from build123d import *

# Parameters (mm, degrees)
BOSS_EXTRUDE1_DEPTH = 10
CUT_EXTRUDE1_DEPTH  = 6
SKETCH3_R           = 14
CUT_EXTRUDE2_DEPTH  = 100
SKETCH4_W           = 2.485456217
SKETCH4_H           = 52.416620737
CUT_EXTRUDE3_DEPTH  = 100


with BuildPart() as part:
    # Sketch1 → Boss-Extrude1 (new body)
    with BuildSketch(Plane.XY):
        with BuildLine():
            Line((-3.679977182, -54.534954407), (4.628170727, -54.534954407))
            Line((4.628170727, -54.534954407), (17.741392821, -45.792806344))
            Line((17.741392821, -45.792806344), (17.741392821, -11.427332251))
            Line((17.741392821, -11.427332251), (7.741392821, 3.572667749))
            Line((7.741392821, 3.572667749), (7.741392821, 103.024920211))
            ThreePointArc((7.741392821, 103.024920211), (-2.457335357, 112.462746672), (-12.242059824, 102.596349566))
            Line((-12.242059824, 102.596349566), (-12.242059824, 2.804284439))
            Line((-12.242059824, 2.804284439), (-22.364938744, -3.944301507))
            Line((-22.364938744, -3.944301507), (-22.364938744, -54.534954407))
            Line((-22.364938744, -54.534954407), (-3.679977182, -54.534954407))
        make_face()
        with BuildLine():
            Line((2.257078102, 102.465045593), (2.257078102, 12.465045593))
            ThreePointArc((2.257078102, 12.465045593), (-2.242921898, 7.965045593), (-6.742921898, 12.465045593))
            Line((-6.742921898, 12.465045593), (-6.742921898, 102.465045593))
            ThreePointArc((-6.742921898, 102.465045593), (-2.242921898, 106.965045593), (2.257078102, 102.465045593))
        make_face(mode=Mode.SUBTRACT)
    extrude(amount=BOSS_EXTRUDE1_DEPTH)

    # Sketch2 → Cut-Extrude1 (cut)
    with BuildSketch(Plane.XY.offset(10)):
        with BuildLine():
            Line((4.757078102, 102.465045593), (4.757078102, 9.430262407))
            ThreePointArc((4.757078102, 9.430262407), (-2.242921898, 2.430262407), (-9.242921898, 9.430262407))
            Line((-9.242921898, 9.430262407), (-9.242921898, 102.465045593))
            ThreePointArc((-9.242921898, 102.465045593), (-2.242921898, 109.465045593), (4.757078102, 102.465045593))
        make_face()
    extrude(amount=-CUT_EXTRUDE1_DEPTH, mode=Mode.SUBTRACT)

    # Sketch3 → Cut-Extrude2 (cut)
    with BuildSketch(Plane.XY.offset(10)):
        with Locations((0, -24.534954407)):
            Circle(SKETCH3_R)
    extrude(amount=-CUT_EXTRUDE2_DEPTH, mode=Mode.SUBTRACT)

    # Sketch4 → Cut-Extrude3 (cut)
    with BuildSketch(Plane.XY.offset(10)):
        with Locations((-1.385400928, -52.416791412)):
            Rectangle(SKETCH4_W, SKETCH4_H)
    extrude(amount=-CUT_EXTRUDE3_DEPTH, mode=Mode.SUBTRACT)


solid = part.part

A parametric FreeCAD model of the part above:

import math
import FreeCAD as App
import Part
import Sketcher
from FreeCAD import Vector

doc = App.newDocument("Part")
body = doc.addObject("PartDesign::Body", "Body")

sketch1 = body.newObject("Sketcher::SketchObject", "Sketch")
sketch1.AttachmentSupport = (doc.getObject("XY_Plane"), [""])
sketch1.MapMode = "FlatFace"
sketch1.addGeometry([
    Part.LineSegment(Vector(4.6, -54.5, 0), Vector(17.7, -45.8, 0)),
    Part.LineSegment(Vector(17.7, -45.8, 0), Vector(17.7, -11.4, 0)),
    Part.LineSegment(Vector(17.7, -11.4, 0), Vector(7.7, 3.6, 0)),
    Part.LineSegment(Vector(7.7, 3.6, 0), Vector(7.7, 103, 0)),
    Part.ArcOfCircle(Part.Circle(Vector(-2.2, 102.5, 0), Vector(0, 0, 1), 10), math.radians(3), math.radians(179)),
    Part.LineSegment(Vector(-12.2, 102.6, 0), Vector(-12.2, 2.8, 0)),
    Part.LineSegment(Vector(-12.2, 2.8, 0), Vector(-22.4, -3.9, 0)),
    Part.LineSegment(Vector(-22.4, -3.9, 0), Vector(-22.4, -54.5, 0)),
    Part.LineSegment(Vector(-22.4, -54.5, 0), Vector(4.6, -54.5, 0)),
    Part.ArcOfCircle(Part.Circle(Vector(-2.2, 102.5, 0), Vector(0, 0, 1), 4.5), math.radians(0), math.radians(180)),
    Part.LineSegment(Vector(2.3, 102.5, 0), Vector(2.3, 12.5, 0)),
    Part.ArcOfCircle(Part.Circle(Vector(-2.2, 12.5, 0), Vector(0, 0, 1), 4.5), math.radians(180), math.radians(360)),
    Part.LineSegment(Vector(-6.7, 12.5, 0), Vector(-6.7, 102.5, 0)),
], False)
sketch1.addConstraint([
    Sketcher.Constraint("Coincident", 0, 2, 1, 1),
    Sketcher.Constraint("Coincident", 1, 2, 2, 1),
    Sketcher.Constraint("Coincident", 2, 2, 3, 1),
    Sketcher.Constraint("Coincident", 3, 2, 4, 1),
    Sketcher.Constraint("Coincident", 4, 2, 5, 1),
    Sketcher.Constraint("Coincident", 5, 2, 6, 1),
    Sketcher.Constraint("Coincident", 6, 2, 7, 1),
    Sketcher.Constraint("Coincident", 7, 2, 8, 1),
    Sketcher.Constraint("Coincident", 8, 2, 0, 1),
    Sketcher.Constraint("Tangent", 9, 1, 10, 1),
    Sketcher.Constraint("Tangent", 10, 2, 11, 2),
    Sketcher.Constraint("Tangent", 11, 1, 12, 1),
    Sketcher.Constraint("Tangent", 12, 2, 9, 2),
    Sketcher.Constraint("Vertical", 1),
    Sketcher.Constraint("Vertical", 3),
    Sketcher.Constraint("Vertical", 5),
    Sketcher.Constraint("Vertical", 7),
    Sketcher.Constraint("Horizontal", 8),
    Sketcher.Constraint("Vertical", 10),
    Sketcher.Constraint("Vertical", 12),
    Sketcher.Constraint("Coincident", 9, 3, 4, 3),
    Sketcher.Constraint("Perpendicular", 0, 2),
    Sketcher.Constraint("Perpendicular", 2, 6),
    Sketcher.Constraint("Radius", 4, 10.0),
    Sketcher.Constraint("Radius", 9, 4.5),
    Sketcher.Constraint("DistanceY", 10, 2, 10, 1, 90.0),
    Sketcher.Constraint("DistanceX", 2, 2, 1, 2, 10.0),
    Sketcher.Constraint("DistanceY", 1, 2, 2, 2, 15.0),
    Sketcher.Constraint("DistanceX", 8, 1, 8, 2, 26.993109),
    Sketcher.Constraint("DistanceY", 6, 2, -1, 1, 3.944302),
    Sketcher.Constraint("Distance", 0, 15.760132),
    Sketcher.Constraint("DistanceY", 1, 1, 1, 2, 34.365474),
    Sketcher.Constraint("DistanceY", 3, 1, 3, 2, 99.452252),
    Sketcher.Constraint("DistanceY", 5, 2, 5, 1, 99.792065),
    Sketcher.Constraint("DistanceY", 7, 2, 7, 1, 50.590653),
    Sketcher.Constraint("DistanceX", 4, 3, -1, 1, 2.242922),
    Sketcher.Constraint("DistanceX", 4, 2, -1, 1, 12.24206),
])
pad1 = body.newObject("PartDesign::Pad", "Pad")
pad1.Profile = sketch1
pad1.Length = 10

sketch2 = body.newObject("Sketcher::SketchObject", "Sketch001")
sketch2.AttachmentSupport = (doc.getObject("XY_Plane"), [""])
sketch2.MapMode = "FlatFace"
sketch2.AttachmentOffset = App.Placement(Vector(0, 0, 10), App.Rotation())
sketch2.addGeometry([
    Part.LineSegment(Vector(5, 9, 0), Vector(5, 102, 0)),
    Part.ArcOfCircle(Part.Circle(Vector(-2, 102, 0), Vector(0, 0, 1), 7), math.radians(0), math.radians(180)),
    Part.LineSegment(Vector(-9, 102, 0), Vector(-9, 9, 0)),
    Part.ArcOfCircle(Part.Circle(Vector(-2, 9, 0), Vector(0, 0, 1), 7), math.radians(180), math.radians(360)),
], False)
sketch2.addConstraint([
    Sketcher.Constraint("Tangent", 0, 2, 1, 1),
    Sketcher.Constraint("Tangent", 1, 2, 2, 1),
    Sketcher.Constraint("Tangent", 2, 2, 3, 1),
    Sketcher.Constraint("Tangent", 3, 2, 0, 1),
    Sketcher.Constraint("Vertical", 0),
    Sketcher.Constraint("Vertical", 2),
    Sketcher.Constraint("Radius", 1, 7.0),
    Sketcher.Constraint("DistanceY", 0, 1, 0, 2, 93.034783),
    Sketcher.Constraint("DistanceX", 1, 3, -1, 1, 2.242922),
    Sketcher.Constraint("DistanceY", -1, 1, 1, 3, 102.465046),
])
pocket1 = body.newObject("PartDesign::Pocket", "Pocket")
pocket1.Profile = sketch2
pocket1.Length = 6

sketch3 = body.newObject("Sketcher::SketchObject", "Sketch002")
sketch3.AttachmentSupport = (doc.getObject("XY_Plane"), [""])
sketch3.MapMode = "FlatFace"
sketch3.AttachmentOffset = App.Placement(Vector(0, 0, 10), App.Rotation())
sketch3.addGeometry(Part.Circle(Vector(0, -25, 0), Vector(0, 0, 1), 14), False)
sketch3.addConstraint([
    Sketcher.Constraint("PointOnObject", 0, 3, -2),
    Sketcher.Constraint("Diameter", 0, 28.0),
    Sketcher.Constraint("DistanceY", 0, 3, -1, 1, 24.534954),
])
pocket2 = body.newObject("PartDesign::Pocket", "Pocket001")
pocket2.Profile = sketch3
pocket2.Length = 100

sketch4 = body.newObject("Sketcher::SketchObject", "Sketch003")
sketch4.AttachmentSupport = (doc.getObject("XY_Plane"), [""])
sketch4.MapMode = "FlatFace"
sketch4.AttachmentOffset = App.Placement(Vector(0, 0, 10), App.Rotation())
sketch4.addGeometry([
    Part.LineSegment(Vector(-2.6, -26.2, 0), Vector(-2.6, -78.6, 0)),
    Part.LineSegment(Vector(-2.6, -78.6, 0), Vector(-0.1, -78.6, 0)),
    Part.LineSegment(Vector(-0.1, -78.6, 0), Vector(-0.1, -26.2, 0)),
    Part.LineSegment(Vector(-0.1, -26.2, 0), Vector(-2.6, -26.2, 0)),
], False)
sketch4.addConstraint([
    Sketcher.Constraint("Coincident", 0, 2, 1, 1),
    Sketcher.Constraint("Coincident", 1, 2, 2, 1),
    Sketcher.Constraint("Coincident", 2, 2, 3, 1),
    Sketcher.Constraint("Coincident", 3, 2, 0, 1),
    Sketcher.Constraint("Vertical", 0),
    Sketcher.Constraint("Horizontal", 1),
    Sketcher.Constraint("Vertical", 2),
    Sketcher.Constraint("Horizontal", 3),
    Sketcher.Constraint("DistanceY", 0, 2, 0, 1, 52.416621),
    Sketcher.Constraint("DistanceY", 0, 2, -1, 1, 78.625102),
    Sketcher.Constraint("DistanceX", 1, 1, 1, 2, 2.485456),
    Sketcher.Constraint("DistanceX", 0, 2, -1, 1, 2.628129),
])
pocket3 = body.newObject("PartDesign::Pocket", "Pocket002")
pocket3.Profile = sketch4
pocket3.Length = 100

doc.recompute()
